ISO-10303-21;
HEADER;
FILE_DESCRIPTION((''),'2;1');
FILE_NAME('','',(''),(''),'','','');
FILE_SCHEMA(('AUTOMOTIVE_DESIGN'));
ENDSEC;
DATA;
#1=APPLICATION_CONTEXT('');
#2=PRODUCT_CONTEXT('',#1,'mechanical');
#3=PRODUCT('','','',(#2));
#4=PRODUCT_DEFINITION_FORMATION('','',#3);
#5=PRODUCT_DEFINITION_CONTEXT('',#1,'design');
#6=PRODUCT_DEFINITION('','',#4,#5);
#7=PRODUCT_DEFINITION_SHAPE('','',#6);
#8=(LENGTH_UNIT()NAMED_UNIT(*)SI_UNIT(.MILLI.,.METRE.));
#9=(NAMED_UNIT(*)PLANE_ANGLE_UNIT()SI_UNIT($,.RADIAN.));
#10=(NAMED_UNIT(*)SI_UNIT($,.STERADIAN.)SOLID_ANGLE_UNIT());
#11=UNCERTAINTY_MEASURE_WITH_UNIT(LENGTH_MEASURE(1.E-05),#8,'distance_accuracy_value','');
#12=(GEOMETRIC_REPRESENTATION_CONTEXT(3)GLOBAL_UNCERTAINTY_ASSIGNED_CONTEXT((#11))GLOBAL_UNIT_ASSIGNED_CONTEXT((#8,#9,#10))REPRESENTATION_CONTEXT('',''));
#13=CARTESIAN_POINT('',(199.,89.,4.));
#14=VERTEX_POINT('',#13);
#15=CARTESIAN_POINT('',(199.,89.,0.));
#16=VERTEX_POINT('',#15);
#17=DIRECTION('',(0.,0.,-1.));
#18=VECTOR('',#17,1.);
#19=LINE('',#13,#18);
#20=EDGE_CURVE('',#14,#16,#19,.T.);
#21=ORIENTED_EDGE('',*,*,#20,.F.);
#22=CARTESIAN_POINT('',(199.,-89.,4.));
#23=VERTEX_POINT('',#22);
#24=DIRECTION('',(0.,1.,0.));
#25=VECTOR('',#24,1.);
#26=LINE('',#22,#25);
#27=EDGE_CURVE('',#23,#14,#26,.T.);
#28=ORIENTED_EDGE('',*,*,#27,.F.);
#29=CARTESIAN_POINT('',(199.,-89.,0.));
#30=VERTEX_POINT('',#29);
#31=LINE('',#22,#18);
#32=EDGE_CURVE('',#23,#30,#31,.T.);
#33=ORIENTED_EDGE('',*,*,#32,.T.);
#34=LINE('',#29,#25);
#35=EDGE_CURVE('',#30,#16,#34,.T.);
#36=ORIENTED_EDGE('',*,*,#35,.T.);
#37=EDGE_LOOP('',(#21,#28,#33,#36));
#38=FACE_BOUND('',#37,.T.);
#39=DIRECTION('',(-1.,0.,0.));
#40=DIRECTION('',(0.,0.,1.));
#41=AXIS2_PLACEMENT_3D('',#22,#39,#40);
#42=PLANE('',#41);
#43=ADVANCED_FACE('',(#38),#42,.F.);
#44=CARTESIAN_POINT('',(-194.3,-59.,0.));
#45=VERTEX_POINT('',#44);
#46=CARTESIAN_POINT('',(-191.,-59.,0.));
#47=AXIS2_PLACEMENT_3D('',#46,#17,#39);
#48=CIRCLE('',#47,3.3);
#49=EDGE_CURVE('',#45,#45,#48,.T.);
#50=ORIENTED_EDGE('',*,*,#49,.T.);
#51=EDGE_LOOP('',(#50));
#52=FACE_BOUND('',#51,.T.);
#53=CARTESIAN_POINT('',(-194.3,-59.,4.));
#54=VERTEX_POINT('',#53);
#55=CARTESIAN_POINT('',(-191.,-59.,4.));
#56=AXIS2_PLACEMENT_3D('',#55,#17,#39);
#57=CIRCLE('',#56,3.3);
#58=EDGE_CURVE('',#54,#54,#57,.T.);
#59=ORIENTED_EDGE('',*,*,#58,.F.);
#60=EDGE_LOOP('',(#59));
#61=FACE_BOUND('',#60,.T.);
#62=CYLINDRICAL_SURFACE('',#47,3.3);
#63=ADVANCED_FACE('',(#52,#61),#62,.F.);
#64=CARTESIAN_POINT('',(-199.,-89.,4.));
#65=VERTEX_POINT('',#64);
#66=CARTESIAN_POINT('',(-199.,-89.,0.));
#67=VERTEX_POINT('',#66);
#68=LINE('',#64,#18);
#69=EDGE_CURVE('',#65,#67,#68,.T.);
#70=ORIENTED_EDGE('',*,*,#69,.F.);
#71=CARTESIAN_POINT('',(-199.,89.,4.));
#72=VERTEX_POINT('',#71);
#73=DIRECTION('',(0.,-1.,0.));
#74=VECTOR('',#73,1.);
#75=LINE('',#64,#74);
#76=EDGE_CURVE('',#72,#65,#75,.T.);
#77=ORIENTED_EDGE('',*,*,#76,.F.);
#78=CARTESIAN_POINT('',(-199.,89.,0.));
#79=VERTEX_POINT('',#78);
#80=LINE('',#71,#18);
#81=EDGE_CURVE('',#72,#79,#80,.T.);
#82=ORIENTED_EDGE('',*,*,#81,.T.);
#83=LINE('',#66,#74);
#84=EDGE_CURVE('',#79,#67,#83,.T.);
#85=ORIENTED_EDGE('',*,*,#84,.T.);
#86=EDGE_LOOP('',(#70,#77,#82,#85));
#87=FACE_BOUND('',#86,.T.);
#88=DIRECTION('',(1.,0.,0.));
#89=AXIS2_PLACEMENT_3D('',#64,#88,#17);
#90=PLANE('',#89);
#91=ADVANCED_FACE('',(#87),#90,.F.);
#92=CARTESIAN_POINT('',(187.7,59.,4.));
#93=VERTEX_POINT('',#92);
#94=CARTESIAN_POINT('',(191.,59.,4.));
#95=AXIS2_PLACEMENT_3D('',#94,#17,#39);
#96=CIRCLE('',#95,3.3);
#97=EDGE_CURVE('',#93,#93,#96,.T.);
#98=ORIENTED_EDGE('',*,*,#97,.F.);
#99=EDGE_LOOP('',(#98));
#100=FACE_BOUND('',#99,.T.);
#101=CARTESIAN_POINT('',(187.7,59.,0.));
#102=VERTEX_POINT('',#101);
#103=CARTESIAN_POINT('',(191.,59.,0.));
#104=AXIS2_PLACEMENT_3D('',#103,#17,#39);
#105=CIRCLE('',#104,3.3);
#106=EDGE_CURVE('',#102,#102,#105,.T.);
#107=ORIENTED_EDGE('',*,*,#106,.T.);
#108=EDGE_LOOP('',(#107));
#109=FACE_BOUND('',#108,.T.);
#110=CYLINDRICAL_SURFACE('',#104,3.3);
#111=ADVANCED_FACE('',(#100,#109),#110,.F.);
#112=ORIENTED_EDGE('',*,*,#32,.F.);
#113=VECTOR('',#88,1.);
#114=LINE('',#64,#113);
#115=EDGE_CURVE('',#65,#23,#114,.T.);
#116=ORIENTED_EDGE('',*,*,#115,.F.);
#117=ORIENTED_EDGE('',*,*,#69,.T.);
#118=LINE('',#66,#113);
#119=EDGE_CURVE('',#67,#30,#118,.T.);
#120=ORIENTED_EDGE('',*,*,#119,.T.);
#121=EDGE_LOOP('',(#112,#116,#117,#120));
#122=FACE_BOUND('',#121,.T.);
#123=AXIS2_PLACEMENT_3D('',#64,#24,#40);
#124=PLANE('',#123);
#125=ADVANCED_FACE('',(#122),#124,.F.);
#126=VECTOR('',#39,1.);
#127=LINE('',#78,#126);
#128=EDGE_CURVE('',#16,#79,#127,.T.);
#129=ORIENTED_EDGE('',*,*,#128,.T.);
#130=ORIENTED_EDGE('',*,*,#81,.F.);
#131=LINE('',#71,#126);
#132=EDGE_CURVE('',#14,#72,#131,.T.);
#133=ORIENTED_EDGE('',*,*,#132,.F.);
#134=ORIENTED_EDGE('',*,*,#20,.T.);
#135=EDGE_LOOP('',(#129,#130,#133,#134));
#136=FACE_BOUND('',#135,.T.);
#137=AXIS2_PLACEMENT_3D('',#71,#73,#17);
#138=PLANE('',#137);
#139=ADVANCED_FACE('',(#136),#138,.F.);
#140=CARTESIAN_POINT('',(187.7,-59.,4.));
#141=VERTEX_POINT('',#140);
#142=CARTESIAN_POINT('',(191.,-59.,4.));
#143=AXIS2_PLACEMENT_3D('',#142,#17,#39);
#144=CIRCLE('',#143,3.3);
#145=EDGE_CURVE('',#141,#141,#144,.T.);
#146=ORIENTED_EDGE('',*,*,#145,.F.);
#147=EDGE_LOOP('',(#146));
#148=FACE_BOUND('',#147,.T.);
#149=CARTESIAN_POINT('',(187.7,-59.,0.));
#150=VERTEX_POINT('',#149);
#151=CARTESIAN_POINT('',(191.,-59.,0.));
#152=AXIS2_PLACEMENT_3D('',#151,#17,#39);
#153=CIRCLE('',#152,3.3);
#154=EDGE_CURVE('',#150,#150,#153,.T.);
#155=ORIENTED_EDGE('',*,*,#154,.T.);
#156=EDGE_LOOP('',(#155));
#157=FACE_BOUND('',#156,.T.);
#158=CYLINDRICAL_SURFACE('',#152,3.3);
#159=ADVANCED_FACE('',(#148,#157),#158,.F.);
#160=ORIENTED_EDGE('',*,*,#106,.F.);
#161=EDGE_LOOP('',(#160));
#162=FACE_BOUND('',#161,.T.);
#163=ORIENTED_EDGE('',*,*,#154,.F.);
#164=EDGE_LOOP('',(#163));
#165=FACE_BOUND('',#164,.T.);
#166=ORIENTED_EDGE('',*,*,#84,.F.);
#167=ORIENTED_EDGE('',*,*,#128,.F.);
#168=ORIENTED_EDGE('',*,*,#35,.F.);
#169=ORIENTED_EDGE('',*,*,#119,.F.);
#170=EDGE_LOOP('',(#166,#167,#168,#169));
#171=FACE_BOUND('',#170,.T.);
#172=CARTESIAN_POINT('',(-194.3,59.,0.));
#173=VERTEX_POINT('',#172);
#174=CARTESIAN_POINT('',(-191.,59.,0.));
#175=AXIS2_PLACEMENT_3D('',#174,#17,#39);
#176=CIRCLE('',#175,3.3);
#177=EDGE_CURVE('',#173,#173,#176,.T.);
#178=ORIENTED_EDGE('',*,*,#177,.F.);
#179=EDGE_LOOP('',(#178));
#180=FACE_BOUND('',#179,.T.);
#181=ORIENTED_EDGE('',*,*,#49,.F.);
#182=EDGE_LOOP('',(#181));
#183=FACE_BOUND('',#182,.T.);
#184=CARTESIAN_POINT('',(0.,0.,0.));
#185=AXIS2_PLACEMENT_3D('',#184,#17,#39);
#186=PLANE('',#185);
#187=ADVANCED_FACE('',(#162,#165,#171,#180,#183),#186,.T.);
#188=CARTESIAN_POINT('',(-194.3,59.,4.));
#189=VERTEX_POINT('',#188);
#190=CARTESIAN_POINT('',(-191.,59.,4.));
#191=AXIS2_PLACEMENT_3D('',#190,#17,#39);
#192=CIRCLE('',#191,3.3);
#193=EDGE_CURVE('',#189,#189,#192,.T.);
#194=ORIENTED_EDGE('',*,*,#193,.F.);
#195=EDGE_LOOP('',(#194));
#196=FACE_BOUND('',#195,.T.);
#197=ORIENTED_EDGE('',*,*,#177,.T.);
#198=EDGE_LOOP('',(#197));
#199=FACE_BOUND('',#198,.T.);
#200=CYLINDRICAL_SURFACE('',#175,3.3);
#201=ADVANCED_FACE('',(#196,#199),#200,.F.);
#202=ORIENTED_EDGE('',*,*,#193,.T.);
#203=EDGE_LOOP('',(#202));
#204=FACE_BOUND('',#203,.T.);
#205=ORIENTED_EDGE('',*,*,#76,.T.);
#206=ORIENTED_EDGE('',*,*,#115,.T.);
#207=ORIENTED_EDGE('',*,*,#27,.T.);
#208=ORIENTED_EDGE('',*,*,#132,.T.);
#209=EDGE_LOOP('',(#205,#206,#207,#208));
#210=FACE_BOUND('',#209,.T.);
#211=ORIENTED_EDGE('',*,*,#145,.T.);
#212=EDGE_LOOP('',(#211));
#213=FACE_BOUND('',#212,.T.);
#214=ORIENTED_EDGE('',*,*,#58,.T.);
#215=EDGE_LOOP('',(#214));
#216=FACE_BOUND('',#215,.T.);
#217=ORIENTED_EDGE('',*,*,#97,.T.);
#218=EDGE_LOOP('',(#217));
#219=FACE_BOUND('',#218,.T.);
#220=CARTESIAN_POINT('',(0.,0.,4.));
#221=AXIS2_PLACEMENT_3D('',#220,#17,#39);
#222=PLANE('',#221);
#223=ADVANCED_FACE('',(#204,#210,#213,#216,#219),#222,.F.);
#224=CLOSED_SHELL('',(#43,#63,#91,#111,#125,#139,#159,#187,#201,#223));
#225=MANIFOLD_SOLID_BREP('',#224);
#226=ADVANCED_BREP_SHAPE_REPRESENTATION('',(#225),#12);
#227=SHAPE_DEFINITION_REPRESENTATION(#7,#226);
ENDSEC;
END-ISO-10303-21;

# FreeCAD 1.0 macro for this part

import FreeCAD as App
import Part
import Sketcher
Q = App.Units.Quantity


def add_polygon(sketch, points):
    """Adds a closed chain of lines whose ends are joined by coincident constraints."""
    first, n = sketch.GeometryCount, len(points)
    for a, b in zip(points, points[1:] + points[:1]):
        sketch.addGeometry(Part.LineSegment(App.Vector(*a, 0), App.Vector(*b, 0)), False)
    for i in range(n):
        sketch.addConstraint(Sketcher.Constraint("Coincident", first + i, 2, first + (i + 1) % n, 1))

doc = App.newDocument("Part")
body = doc.addObject("PartDesign::Body", "Body")

# Sketch on XY plane
sketch1 = doc.addObject("Sketcher::SketchObject", "Sketch")
body.addObject(sketch1)
sketch1.AttachmentSupport = (doc.XY_Plane, [""])
sketch1.MapMode = "FlatFace"
add_polygon(sketch1, [(-199, 89), (-199, -89), (199, -89), (199, 89)])  # lines 0-3
sketch1.addConstraint(Sketcher.Constraint("Vertical", 0))
sketch1.addConstraint(Sketcher.Constraint("Horizontal", 1))
sketch1.addConstraint(Sketcher.Constraint("Vertical", 2))
sketch1.addConstraint(Sketcher.Constraint("Horizontal", 3))
sketch1.addConstraint(Sketcher.Constraint("Symmetric", 0, 2, 2, 2, -1, 1))
sketch1.addConstraint(Sketcher.Constraint("DistanceX", 1, 1, 1, 2, Q("398 mm")))
sketch1.addConstraint(Sketcher.Constraint("DistanceY", 0, 2, 0, 1, Q("178 mm")))
pad1 = doc.addObject("PartDesign::Pad", "Pad")
body.addObject(pad1)
pad1.Profile = sketch1
pad1.Length = 4

# Sketch on XY plane
sketch2 = doc.addObject("Sketcher::SketchObject", "Sketch001")
body.addObject(sketch2)
sketch2.AttachmentSupport = (doc.XY_Plane, [""])
sketch2.MapMode = "FlatFace"
sketch2.addGeometry(Part.Circle(App.Vector(-191, 59, 0), App.Vector(0, 0, 1), 3.3), False)
sketch2.addGeometry(Part.Circle(App.Vector(191, 59, 0), App.Vector(0, 0, 1), 3.3), False)
sketch2.addGeometry(Part.Circle(App.Vector(-191, -59, 0), App.Vector(0, 0, 1), 3.3), False)
sketch2.addGeometry(Part.Circle(App.Vector(191, -59, 0), App.Vector(0, 0, 1), 3.3), False)
sketch2.addConstraint(Sketcher.Constraint("Equal", 0, 1))
sketch2.addConstraint(Sketcher.Constraint("Equal", 1, 2))
sketch2.addConstraint(Sketcher.Constraint("Equal", 2, 3))
sketch2.addConstraint(Sketcher.Constraint("Symmetric", 1, 3, 2, 3, -1, 1))
sketch2.addConstraint(Sketcher.Constraint("Symmetric", 0, 3, 3, 3, -1, 1))
sketch2.addConstraint(Sketcher.Constraint("Symmetric", 0, 3, 1, 3, -2))
sketch2.addConstraint(Sketcher.Constraint("Diameter", 0, Q("6.6 mm")))
sketch2.addConstraint(Sketcher.Constraint("DistanceX", 0, 3, -1, 1, Q("191 mm")))
sketch2.addConstraint(Sketcher.Constraint("DistanceY", -1, 1, 0, 3, Q("59 mm")))
doc.recompute()
hole = doc.addObject("PartDesign::Hole", "Hole")
body.addObject(hole)
hole.Profile = sketch2
hole.ThreadType = "None"
hole.Diameter = 6.6
hole.DepthType = "ThroughAll"
hole.Reversed = True

doc.recompute()
